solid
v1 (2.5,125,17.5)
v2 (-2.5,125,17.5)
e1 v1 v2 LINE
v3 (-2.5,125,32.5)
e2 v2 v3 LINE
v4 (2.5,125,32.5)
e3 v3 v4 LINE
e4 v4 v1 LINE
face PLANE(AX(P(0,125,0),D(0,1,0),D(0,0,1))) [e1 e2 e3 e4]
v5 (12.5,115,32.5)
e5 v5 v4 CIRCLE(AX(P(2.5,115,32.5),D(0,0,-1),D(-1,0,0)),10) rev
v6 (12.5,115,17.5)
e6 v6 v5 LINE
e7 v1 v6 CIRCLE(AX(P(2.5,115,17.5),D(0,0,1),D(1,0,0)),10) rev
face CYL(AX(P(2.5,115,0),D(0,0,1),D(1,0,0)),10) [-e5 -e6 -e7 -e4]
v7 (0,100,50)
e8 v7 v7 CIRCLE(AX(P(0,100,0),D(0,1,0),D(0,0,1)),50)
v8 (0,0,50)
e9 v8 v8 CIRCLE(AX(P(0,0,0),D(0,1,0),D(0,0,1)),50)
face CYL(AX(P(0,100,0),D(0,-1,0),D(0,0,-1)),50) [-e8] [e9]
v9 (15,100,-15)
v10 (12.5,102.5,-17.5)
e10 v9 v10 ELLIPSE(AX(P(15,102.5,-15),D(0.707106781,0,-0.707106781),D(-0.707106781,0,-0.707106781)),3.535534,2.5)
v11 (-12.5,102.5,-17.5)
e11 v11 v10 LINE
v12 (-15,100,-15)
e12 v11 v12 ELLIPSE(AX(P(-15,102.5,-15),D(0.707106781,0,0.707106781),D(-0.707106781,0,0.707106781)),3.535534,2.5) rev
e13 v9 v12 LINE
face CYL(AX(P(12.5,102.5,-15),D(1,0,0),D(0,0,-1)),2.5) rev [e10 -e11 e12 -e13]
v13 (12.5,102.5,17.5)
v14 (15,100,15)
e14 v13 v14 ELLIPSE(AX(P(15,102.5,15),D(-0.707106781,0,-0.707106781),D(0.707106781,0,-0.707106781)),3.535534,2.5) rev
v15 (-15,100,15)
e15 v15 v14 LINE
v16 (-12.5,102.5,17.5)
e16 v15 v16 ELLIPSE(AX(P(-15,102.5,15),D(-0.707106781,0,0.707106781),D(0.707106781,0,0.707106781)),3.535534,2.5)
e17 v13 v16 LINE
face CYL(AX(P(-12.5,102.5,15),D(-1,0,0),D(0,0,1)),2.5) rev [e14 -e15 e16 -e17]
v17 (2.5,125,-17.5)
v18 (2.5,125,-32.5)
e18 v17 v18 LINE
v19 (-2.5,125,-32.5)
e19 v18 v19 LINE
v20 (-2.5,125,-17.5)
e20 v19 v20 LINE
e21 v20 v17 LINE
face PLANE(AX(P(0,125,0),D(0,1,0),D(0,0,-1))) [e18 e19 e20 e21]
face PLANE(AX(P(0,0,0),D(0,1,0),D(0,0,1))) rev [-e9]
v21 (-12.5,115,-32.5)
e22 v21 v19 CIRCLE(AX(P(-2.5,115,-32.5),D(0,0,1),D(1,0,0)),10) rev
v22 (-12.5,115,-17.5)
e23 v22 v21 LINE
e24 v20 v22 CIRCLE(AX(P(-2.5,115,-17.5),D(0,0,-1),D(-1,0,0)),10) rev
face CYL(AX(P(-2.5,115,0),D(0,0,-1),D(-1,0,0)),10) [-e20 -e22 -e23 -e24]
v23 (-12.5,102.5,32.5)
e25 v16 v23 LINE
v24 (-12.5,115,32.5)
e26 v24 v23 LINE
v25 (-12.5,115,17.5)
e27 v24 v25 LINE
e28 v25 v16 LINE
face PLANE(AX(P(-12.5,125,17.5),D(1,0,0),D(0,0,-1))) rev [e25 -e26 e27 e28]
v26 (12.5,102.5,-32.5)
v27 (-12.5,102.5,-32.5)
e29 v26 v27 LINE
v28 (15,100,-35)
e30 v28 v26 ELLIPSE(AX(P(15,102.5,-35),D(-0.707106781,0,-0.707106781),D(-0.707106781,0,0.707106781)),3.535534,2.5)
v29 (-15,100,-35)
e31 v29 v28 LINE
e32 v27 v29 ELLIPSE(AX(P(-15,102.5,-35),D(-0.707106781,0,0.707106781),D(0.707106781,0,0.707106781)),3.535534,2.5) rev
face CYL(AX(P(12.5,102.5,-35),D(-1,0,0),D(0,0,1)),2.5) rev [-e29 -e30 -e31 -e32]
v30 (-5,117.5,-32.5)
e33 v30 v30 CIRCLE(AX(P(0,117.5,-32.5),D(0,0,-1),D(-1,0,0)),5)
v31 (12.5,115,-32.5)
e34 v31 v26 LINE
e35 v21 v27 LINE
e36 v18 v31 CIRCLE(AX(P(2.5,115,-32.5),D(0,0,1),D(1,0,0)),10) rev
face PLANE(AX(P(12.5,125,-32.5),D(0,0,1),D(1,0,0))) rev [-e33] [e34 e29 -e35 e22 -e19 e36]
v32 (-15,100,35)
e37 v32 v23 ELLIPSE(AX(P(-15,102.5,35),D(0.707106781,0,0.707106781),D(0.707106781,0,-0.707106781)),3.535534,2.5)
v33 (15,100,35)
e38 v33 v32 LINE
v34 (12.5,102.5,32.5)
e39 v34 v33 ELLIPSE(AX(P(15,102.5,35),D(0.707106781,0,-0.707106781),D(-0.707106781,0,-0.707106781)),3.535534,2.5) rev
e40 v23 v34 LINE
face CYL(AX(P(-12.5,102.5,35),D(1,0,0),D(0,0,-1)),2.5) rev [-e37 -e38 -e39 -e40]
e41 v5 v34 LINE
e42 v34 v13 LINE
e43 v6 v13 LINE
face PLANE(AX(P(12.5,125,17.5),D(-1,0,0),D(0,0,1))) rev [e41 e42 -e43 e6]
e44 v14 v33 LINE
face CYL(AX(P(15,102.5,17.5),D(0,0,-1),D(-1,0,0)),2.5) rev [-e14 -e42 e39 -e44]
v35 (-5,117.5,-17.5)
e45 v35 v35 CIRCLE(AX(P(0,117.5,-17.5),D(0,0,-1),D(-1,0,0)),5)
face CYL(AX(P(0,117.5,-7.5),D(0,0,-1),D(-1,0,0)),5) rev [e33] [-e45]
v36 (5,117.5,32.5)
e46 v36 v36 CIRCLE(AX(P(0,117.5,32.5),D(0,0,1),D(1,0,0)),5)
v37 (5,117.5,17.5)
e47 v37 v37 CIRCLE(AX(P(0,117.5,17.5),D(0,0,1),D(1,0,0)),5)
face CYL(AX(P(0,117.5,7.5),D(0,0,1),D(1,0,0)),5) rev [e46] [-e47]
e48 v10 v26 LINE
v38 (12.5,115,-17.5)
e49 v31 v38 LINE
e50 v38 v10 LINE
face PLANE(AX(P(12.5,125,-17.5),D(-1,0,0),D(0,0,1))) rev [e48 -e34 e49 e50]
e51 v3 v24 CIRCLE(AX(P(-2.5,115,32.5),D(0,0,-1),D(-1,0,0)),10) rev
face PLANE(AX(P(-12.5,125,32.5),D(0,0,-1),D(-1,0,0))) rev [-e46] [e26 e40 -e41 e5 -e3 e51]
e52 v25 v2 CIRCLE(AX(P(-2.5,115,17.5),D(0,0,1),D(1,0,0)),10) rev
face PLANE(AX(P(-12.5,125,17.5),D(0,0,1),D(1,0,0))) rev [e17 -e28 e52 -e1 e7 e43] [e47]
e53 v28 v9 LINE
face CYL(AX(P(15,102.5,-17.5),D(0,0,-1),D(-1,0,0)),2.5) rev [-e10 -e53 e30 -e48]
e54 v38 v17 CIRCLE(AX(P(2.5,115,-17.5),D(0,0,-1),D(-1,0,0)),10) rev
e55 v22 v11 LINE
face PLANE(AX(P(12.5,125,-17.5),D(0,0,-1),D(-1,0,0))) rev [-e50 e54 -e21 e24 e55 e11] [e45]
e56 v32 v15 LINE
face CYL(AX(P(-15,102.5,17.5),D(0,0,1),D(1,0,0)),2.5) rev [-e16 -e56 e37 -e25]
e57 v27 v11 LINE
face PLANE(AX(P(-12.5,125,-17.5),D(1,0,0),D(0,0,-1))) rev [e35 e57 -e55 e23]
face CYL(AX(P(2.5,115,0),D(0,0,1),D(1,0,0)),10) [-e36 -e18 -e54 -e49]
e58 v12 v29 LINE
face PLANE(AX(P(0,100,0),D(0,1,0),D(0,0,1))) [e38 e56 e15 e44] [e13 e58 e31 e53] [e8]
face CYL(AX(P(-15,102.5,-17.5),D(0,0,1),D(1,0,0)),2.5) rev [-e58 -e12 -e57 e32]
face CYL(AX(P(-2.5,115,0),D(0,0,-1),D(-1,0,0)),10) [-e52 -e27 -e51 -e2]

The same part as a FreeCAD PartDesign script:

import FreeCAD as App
import Part
import Sketcher

V = App.Vector
Q = App.Units.Quantity


def edges_at(feature, points):
    """Names of the edges that pass closest to the given points."""
    edges = feature.Shape.Edges
    near = lambda p: min(range(len(edges)), key=lambda i: edges[i].distToShape(Part.Vertex(*p))[0])
    return sorted({f"Edge{near(p) + 1}" for p in points})


def add_polygon(sketch, points):
    """Adds a closed chain of lines whose ends are joined by coincident constraints."""
    first, n = sketch.GeometryCount, len(points)
    for a, b in zip(points, points[1:] + points[:1]):
        sketch.addGeometry(Part.LineSegment(App.Vector(*a, 0), App.Vector(*b, 0)), False)
    for i in range(n):
        sketch.addConstraint(Sketcher.Constraint("Coincident", first + i, 2, first + (i + 1) % n, 1))

doc = App.newDocument("Part")
body = doc.addObject("PartDesign::Body", "Body")

# Sketch on XZ plane
sketch1 = body.newObject("Sketcher::SketchObject", "Sketch")
sketch1.AttachmentSupport = (doc.getObject("XZ_Plane"), [""])
sketch1.MapMode = "FlatFace"
sketch1.addGeometry(Part.Circle(V(0, 0, 0), V(0, 0, 1), 50), False)
sketch1.addConstraint(Sketcher.Constraint("Coincident", 0, 3, -1, 1))
sketch1.addConstraint(Sketcher.Constraint("Diameter", 0, Q("100 mm")))
pad1 = body.newObject("PartDesign::Pad", "Pad")
pad1.Profile = sketch1
pad1.Length = 100
pad1.Reversed = True

# Sketch on XZ plane
sketch2 = body.newObject("Sketcher::SketchObject", "Sketch001")
sketch2.AttachmentSupport = (doc.getObject("XZ_Plane"), [""])
sketch2.MapMode = "FlatFace"
sketch2.AttachmentOffset = App.Placement(V(0, 0, -100), App.Rotation())
add_polygon(sketch2, [(-12, 18), (-12, 32), (12, 32), (12, 18)])  # lines 0-3
sketch2.addConstraint(Sketcher.Constraint("Vertical", 0))
sketch2.addConstraint(Sketcher.Constraint("Horizontal", 1))
sketch2.addConstraint(Sketcher.Constraint("Vertical", 2))
sketch2.addConstraint(Sketcher.Constraint("Horizontal", 3))
sketch2.addConstraint(Sketcher.Constraint("DistanceX", 1, 1, 1, 2, Q("25 mm")))
sketch2.addConstraint(Sketcher.Constraint("DistanceY", 0, 1, 0, 2, Q("15 mm")))
sketch2.addConstraint(Sketcher.Constraint("DistanceX", 0, 2, -1, 1, Q("12.5 mm")))
sketch2.addConstraint(Sketcher.Constraint("DistanceY", -1, 1, 0, 2, Q("32.5 mm")))
pad2 = body.newObject("PartDesign::Pad", "Pad001")
pad2.Profile = sketch2
pad2.Length = 25
pad2.Reversed = True
doc.recompute()

fillet = body.newObject("PartDesign::Fillet", "Fillet")
fillet.Base = (pad2, edges_at(pad2, [
    (12.5, 100, 25),
    (0, 100, 17.5),
    (-12.5, 100, 25),
    (0, 100, 32.5),
]))
fillet.Radius = 2.5
doc.recompute()

fillet2 = body.newObject("PartDesign::Fillet", "Fillet001")
fillet2.Base = (fillet, edges_at(fillet, [(12.5, 125, 25), (-12.5, 125, 25)]))
fillet2.Radius = 10

# Sketch on XY plane
sketch3 = body.newObject("Sketcher::SketchObject", "Sketch002")
sketch3.AttachmentSupport = (doc.getObject("XY_Plane"), [""])
sketch3.MapMode = "FlatFace"
sketch3.AttachmentOffset = App.Placement(V(0, 0, 32.5), App.Rotation())
sketch3.addGeometry(Part.Circle(V(0, 118, 0), V(0, 0, 1), 5), False)
sketch3.addConstraint(Sketcher.Constraint("PointOnObject", 0, 3, -2))
sketch3.addConstraint(Sketcher.Constraint("Diameter", 0, Q("10 mm")))
sketch3.addConstraint(Sketcher.Constraint("DistanceY", -1, 1, 0, 3, Q("117.5 mm")))
pocket1 = body.newObject("PartDesign::Pocket", "Pocket")
pocket1.Profile = sketch3
pocket1.Length = 25
doc.recompute()

polarpattern = body.newObject("PartDesign::PolarPattern", "PolarPattern")
polarpattern.Originals = [pad2, pocket1]
polarpattern.Axis = (doc.getObject("Y_Axis"), [""])
polarpattern.Angle = 360
polarpattern.Occurrences = 2
body.Tip = polarpattern
doc.recompute()

fillet3 = body.newObject("PartDesign::Fillet", "Fillet002")
fillet3.Base = (polarpattern, edges_at(polarpattern, [
    (-12.5, 100, -25),
    (0, 100, -17.5),
    (12.5, 100, -25),
    (0, 100, -32.5),
]))
fillet3.Radius = 2.5
doc.recompute()

fillet4 = body.newObject("PartDesign::Fillet", "Fillet003")
fillet4.Base = (fillet3, edges_at(fillet3, [(-12.5, 125, -25), (12.5, 125, -25)]))
fillet4.Radius = 10

doc.recompute()
